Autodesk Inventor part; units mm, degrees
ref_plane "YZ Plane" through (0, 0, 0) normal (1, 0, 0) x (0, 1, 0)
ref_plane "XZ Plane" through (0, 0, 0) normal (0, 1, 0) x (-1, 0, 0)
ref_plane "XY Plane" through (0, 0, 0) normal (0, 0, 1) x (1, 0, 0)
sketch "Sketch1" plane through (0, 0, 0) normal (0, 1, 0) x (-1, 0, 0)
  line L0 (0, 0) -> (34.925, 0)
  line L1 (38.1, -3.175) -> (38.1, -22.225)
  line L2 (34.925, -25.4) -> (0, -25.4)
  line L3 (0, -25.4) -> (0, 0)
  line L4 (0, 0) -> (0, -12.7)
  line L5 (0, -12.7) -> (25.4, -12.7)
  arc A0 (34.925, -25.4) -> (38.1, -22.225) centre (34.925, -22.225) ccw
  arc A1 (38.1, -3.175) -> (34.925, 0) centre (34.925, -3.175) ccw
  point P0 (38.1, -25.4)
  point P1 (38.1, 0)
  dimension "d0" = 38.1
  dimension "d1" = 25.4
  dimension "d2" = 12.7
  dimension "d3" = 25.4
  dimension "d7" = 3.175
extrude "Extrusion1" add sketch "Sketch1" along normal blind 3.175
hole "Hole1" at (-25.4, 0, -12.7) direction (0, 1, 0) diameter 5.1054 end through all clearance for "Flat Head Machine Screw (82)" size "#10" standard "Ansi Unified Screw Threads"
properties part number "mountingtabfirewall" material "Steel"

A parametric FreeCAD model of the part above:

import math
import FreeCAD as App
import Part
import Sketcher
from FreeCAD import Vector
Q = App.Units.Quantity

doc = App.newDocument("Part")
body = doc.addObject("PartDesign::Body", "Body")

# Sketch on XZ plane
sketch1 = doc.addObject("Sketcher::SketchObject", "Sketch")
body.addObject(sketch1)
sketch1.AttachmentSupport = (doc.XZ_Plane, [""])
sketch1.MapMode = "FlatFace"
sketch1.addGeometry(Part.LineSegment(Vector(-34.925, 0, 0), Vector(0, 0, 0)), False)
sketch1.addGeometry(Part.LineSegment(Vector(0, 0, 0), Vector(0, -25.4, 0)), False)
sketch1.addGeometry(Part.LineSegment(Vector(0, -25.4, 0), Vector(-34.925, -25.4, 0)), False)
sketch1.addGeometry(Part.ArcOfCircle(Part.Circle(Vector(-34.925, -22.225, 0), Vector(0, 0, 1), 3.175), math.radians(180), math.radians(270)), False)
sketch1.addGeometry(Part.LineSegment(Vector(-38.1, -22.225, 0), Vector(-38.1, -3.175, 0)), False)
sketch1.addGeometry(Part.ArcOfCircle(Part.Circle(Vector(-34.925, -3.175, 0), Vector(0, 0, 1), 3.175), math.radians(90), math.radians(180)), False)
sketch1.addConstraint(Sketcher.Constraint("Coincident", 0, 2, 1, 1))
sketch1.addConstraint(Sketcher.Constraint("Coincident", 1, 2, 2, 1))
sketch1.addConstraint(Sketcher.Constraint("Tangent", 2, 2, 3, 2))
sketch1.addConstraint(Sketcher.Constraint("Tangent", 3, 1, 4, 1))
sketch1.addConstraint(Sketcher.Constraint("Tangent", 4, 2, 5, 2))
sketch1.addConstraint(Sketcher.Constraint("Tangent", 5, 1, 0, 1))
sketch1.addConstraint(Sketcher.Constraint("Horizontal", 0))
sketch1.addConstraint(Sketcher.Constraint("Vertical", 1))
sketch1.addConstraint(Sketcher.Constraint("Horizontal", 2))
sketch1.addConstraint(Sketcher.Constraint("Vertical", 4))
sketch1.addConstraint(Sketcher.Constraint("Coincident", 0, 2, -1, 1))
sketch1.addConstraint(Sketcher.Constraint("Equal", 3, 5))
sketch1.addConstraint(Sketcher.Constraint("DistanceY", 1, 2, 1, 1, Q("1 in")))
sketch1.addConstraint(Sketcher.Constraint("Radius", 3, Q("0.125 in")))
sketch1.addConstraint(Sketcher.Constraint("DistanceX", 3, 1, -1, 1, Q("1.5 in")))
pad1 = doc.addObject("PartDesign::Pad", "Pad")
body.addObject(pad1)
pad1.Profile = sketch1
pad1.Length = Q("0.125 in")
pad1.Reversed = True

# Sketch on XZ plane
sketch2 = doc.addObject("Sketcher::SketchObject", "Sketch001")
body.addObject(sketch2)
sketch2.AttachmentSupport = (doc.XZ_Plane, [""])
sketch2.MapMode = "FlatFace"
sketch2.addGeometry(Part.Circle(Vector(-25.4, -12.7, 0), Vector(0, 0, 1), 2.5527), False)
sketch2.addConstraint(Sketcher.Constraint("Diameter", 0, Q("0.201 in")))
sketch2.addConstraint(Sketcher.Constraint("DistanceX", 0, 3, -1, 1, Q("1 in")))
sketch2.addConstraint(Sketcher.Constraint("DistanceY", 0, 3, -1, 1, Q("0.5 in")))
doc.recompute()
hole = doc.addObject("PartDesign::Hole", "Hole")
body.addObject(hole)
hole.Profile = sketch2
hole.ThreadType = "None"
hole.Diameter = Q("0.201 in")
hole.DepthType = "ThroughAll"

doc.recompute()
